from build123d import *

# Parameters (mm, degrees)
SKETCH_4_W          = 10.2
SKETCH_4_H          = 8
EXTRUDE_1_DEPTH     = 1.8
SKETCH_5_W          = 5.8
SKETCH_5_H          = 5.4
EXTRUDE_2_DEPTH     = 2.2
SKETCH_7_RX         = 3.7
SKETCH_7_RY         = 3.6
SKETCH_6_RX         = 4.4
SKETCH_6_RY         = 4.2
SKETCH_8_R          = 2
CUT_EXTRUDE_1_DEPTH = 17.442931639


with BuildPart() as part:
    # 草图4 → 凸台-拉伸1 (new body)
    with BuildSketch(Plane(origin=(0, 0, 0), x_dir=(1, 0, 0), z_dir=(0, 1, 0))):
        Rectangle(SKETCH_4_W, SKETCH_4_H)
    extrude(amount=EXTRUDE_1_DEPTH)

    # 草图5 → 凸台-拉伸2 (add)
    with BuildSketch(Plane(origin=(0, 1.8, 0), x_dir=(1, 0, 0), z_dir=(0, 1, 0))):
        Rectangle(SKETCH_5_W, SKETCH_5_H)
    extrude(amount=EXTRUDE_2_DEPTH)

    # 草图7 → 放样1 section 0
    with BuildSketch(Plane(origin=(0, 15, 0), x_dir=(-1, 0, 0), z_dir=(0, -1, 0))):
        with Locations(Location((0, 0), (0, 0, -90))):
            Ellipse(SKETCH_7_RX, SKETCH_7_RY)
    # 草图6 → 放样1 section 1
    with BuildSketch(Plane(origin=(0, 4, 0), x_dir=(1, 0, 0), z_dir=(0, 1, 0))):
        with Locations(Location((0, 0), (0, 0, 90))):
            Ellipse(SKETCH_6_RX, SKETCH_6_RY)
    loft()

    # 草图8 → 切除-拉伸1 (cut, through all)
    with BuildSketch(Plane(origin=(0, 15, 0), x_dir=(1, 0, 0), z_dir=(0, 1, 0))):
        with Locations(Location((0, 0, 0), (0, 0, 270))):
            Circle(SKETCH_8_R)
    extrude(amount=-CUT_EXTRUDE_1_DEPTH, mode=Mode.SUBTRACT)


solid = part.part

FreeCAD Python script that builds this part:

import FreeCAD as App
import Part
import Sketcher
from FreeCAD import Vector

doc = App.newDocument("Part")
body = doc.addObject("PartDesign::Body", "Body")

# Sketch on XZ plane
sketch1 = body.newObject("Sketcher::SketchObject", "Sketch")
sketch1.AttachmentSupport = (doc.getObject("XZ_Plane"), [""])
sketch1.MapMode = "FlatFace"
sketch1.addGeometry([
    Part.LineSegment(Vector(-5, -4, 0), Vector(-5, 4, 0)),
    Part.LineSegment(Vector(-5, 4, 0), Vector(5, 4, 0)),
    Part.LineSegment(Vector(5, 4, 0), Vector(5, -4, 0)),
    Part.LineSegment(Vector(5, -4, 0), Vector(-5, -4, 0)),
], False)
sketch1.addConstraint([
    Sketcher.Constraint("Coincident", 0, 2, 1, 1),
    Sketcher.Constraint("Coincident", 1, 2, 2, 1),
    Sketcher.Constraint("Coincident", 2, 2, 3, 1),
    Sketcher.Constraint("Coincident", 3, 2, 0, 1),
    Sketcher.Constraint("Vertical", 0),
    Sketcher.Constraint("Horizontal", 1),
    Sketcher.Constraint("Vertical", 2),
    Sketcher.Constraint("Horizontal", 3),
    Sketcher.Constraint("Symmetric", 0, 2, 2, 2, -1, 1),
    Sketcher.Constraint("DistanceY", 0, 1, 0, 2, 8.0),
    Sketcher.Constraint("DistanceX", 1, 1, 1, 2, 10.2),
])
pad1 = body.newObject("PartDesign::Pad", "Pad")
pad1.Profile = sketch1
pad1.Length = 1.8
pad1.Reversed = True

# Sketch on XZ plane
sketch2 = body.newObject("Sketcher::SketchObject", "Sketch001")
sketch2.AttachmentSupport = (doc.getObject("XZ_Plane"), [""])
sketch2.MapMode = "FlatFace"
sketch2.AttachmentOffset = App.Placement(Vector(0, 0, -1.8), App.Rotation())
sketch2.addGeometry([
    Part.LineSegment(Vector(-3, -3, 0), Vector(-3, 3, 0)),
    Part.LineSegment(Vector(-3, 3, 0), Vector(3, 3, 0)),
    Part.LineSegment(Vector(3, 3, 0), Vector(3, -3, 0)),
    Part.LineSegment(Vector(3, -3, 0), Vector(-3, -3, 0)),
], False)
sketch2.addConstraint([
    Sketcher.Constraint("Coincident", 0, 2, 1, 1),
    Sketcher.Constraint("Coincident", 1, 2, 2, 1),
    Sketcher.Constraint("Coincident", 2, 2, 3, 1),
    Sketcher.Constraint("Coincident", 3, 2, 0, 1),
    Sketcher.Constraint("Vertical", 0),
    Sketcher.Constraint("Horizontal", 1),
    Sketcher.Constraint("Vertical", 2),
    Sketcher.Constraint("Horizontal", 3),
    Sketcher.Constraint("Symmetric", 0, 2, 2, 2, -1, 1),
    Sketcher.Constraint("DistanceX", 1, 1, 1, 2, 5.8),
    Sketcher.Constraint("DistanceY", 0, 1, 0, 2, 5.4),
])
pad2 = body.newObject("PartDesign::Pad", "Pad001")
pad2.Profile = sketch2
pad2.Length = 2.2
pad2.Reversed = True

# Sketch on XZ plane
sketch3 = body.newObject("Sketcher::SketchObject", "Sketch002")
sketch3.AttachmentSupport = (doc.getObject("XZ_Plane"), [""])
sketch3.MapMode = "FlatFace"
sketch3.AttachmentOffset = App.Placement(Vector(0, 0, -15), App.Rotation())
sketch3.addGeometry(Part.Ellipse(Vector(0, 3.7, 0), Vector(-3.6, 0, 0), Vector(0, 0, 0)), False)
sketch3.addConstraint(Sketcher.Constraint("Block", 0))

# Sketch on XZ plane
sketch4 = body.newObject("Sketcher::SketchObject", "Sketch003")
sketch4.AttachmentSupport = (doc.getObject("XZ_Plane"), [""])
sketch4.MapMode = "FlatFace"
sketch4.AttachmentOffset = App.Placement(Vector(0, 0, -4), App.Rotation())
sketch4.addGeometry(Part.Ellipse(Vector(0, -4.4, 0), Vector(4.2, 0, 0), Vector(0, 0, 0)), False)
sketch4.addConstraint(Sketcher.Constraint("Block", 0))

additiveloft = body.newObject("PartDesign::AdditiveLoft", "AdditiveLoft")
additiveloft.Profile = sketch3
additiveloft.Sections = [sketch4]

# Sketch on XZ plane
sketch5 = body.newObject("Sketcher::SketchObject", "Sketch004")
sketch5.AttachmentSupport = (doc.getObject("XZ_Plane"), [""])
sketch5.MapMode = "FlatFace"
sketch5.AttachmentOffset = App.Placement(Vector(0, 0, -15), App.Rotation())
sketch5.addGeometry(Part.Circle(Vector(0, 0, 0), Vector(0, 0, 1), 2), False)
sketch5.addConstraint([
    Sketcher.Constraint("Coincident", 0, 3, -1, 1),
    Sketcher.Constraint("Diameter", 0, 4.0),
])
pocket1 = body.newObject("PartDesign::Pocket", "Pocket")
pocket1.Profile = sketch5
pocket1.Type = "ThroughAll"
pocket1.Reversed = True

doc.recompute()
